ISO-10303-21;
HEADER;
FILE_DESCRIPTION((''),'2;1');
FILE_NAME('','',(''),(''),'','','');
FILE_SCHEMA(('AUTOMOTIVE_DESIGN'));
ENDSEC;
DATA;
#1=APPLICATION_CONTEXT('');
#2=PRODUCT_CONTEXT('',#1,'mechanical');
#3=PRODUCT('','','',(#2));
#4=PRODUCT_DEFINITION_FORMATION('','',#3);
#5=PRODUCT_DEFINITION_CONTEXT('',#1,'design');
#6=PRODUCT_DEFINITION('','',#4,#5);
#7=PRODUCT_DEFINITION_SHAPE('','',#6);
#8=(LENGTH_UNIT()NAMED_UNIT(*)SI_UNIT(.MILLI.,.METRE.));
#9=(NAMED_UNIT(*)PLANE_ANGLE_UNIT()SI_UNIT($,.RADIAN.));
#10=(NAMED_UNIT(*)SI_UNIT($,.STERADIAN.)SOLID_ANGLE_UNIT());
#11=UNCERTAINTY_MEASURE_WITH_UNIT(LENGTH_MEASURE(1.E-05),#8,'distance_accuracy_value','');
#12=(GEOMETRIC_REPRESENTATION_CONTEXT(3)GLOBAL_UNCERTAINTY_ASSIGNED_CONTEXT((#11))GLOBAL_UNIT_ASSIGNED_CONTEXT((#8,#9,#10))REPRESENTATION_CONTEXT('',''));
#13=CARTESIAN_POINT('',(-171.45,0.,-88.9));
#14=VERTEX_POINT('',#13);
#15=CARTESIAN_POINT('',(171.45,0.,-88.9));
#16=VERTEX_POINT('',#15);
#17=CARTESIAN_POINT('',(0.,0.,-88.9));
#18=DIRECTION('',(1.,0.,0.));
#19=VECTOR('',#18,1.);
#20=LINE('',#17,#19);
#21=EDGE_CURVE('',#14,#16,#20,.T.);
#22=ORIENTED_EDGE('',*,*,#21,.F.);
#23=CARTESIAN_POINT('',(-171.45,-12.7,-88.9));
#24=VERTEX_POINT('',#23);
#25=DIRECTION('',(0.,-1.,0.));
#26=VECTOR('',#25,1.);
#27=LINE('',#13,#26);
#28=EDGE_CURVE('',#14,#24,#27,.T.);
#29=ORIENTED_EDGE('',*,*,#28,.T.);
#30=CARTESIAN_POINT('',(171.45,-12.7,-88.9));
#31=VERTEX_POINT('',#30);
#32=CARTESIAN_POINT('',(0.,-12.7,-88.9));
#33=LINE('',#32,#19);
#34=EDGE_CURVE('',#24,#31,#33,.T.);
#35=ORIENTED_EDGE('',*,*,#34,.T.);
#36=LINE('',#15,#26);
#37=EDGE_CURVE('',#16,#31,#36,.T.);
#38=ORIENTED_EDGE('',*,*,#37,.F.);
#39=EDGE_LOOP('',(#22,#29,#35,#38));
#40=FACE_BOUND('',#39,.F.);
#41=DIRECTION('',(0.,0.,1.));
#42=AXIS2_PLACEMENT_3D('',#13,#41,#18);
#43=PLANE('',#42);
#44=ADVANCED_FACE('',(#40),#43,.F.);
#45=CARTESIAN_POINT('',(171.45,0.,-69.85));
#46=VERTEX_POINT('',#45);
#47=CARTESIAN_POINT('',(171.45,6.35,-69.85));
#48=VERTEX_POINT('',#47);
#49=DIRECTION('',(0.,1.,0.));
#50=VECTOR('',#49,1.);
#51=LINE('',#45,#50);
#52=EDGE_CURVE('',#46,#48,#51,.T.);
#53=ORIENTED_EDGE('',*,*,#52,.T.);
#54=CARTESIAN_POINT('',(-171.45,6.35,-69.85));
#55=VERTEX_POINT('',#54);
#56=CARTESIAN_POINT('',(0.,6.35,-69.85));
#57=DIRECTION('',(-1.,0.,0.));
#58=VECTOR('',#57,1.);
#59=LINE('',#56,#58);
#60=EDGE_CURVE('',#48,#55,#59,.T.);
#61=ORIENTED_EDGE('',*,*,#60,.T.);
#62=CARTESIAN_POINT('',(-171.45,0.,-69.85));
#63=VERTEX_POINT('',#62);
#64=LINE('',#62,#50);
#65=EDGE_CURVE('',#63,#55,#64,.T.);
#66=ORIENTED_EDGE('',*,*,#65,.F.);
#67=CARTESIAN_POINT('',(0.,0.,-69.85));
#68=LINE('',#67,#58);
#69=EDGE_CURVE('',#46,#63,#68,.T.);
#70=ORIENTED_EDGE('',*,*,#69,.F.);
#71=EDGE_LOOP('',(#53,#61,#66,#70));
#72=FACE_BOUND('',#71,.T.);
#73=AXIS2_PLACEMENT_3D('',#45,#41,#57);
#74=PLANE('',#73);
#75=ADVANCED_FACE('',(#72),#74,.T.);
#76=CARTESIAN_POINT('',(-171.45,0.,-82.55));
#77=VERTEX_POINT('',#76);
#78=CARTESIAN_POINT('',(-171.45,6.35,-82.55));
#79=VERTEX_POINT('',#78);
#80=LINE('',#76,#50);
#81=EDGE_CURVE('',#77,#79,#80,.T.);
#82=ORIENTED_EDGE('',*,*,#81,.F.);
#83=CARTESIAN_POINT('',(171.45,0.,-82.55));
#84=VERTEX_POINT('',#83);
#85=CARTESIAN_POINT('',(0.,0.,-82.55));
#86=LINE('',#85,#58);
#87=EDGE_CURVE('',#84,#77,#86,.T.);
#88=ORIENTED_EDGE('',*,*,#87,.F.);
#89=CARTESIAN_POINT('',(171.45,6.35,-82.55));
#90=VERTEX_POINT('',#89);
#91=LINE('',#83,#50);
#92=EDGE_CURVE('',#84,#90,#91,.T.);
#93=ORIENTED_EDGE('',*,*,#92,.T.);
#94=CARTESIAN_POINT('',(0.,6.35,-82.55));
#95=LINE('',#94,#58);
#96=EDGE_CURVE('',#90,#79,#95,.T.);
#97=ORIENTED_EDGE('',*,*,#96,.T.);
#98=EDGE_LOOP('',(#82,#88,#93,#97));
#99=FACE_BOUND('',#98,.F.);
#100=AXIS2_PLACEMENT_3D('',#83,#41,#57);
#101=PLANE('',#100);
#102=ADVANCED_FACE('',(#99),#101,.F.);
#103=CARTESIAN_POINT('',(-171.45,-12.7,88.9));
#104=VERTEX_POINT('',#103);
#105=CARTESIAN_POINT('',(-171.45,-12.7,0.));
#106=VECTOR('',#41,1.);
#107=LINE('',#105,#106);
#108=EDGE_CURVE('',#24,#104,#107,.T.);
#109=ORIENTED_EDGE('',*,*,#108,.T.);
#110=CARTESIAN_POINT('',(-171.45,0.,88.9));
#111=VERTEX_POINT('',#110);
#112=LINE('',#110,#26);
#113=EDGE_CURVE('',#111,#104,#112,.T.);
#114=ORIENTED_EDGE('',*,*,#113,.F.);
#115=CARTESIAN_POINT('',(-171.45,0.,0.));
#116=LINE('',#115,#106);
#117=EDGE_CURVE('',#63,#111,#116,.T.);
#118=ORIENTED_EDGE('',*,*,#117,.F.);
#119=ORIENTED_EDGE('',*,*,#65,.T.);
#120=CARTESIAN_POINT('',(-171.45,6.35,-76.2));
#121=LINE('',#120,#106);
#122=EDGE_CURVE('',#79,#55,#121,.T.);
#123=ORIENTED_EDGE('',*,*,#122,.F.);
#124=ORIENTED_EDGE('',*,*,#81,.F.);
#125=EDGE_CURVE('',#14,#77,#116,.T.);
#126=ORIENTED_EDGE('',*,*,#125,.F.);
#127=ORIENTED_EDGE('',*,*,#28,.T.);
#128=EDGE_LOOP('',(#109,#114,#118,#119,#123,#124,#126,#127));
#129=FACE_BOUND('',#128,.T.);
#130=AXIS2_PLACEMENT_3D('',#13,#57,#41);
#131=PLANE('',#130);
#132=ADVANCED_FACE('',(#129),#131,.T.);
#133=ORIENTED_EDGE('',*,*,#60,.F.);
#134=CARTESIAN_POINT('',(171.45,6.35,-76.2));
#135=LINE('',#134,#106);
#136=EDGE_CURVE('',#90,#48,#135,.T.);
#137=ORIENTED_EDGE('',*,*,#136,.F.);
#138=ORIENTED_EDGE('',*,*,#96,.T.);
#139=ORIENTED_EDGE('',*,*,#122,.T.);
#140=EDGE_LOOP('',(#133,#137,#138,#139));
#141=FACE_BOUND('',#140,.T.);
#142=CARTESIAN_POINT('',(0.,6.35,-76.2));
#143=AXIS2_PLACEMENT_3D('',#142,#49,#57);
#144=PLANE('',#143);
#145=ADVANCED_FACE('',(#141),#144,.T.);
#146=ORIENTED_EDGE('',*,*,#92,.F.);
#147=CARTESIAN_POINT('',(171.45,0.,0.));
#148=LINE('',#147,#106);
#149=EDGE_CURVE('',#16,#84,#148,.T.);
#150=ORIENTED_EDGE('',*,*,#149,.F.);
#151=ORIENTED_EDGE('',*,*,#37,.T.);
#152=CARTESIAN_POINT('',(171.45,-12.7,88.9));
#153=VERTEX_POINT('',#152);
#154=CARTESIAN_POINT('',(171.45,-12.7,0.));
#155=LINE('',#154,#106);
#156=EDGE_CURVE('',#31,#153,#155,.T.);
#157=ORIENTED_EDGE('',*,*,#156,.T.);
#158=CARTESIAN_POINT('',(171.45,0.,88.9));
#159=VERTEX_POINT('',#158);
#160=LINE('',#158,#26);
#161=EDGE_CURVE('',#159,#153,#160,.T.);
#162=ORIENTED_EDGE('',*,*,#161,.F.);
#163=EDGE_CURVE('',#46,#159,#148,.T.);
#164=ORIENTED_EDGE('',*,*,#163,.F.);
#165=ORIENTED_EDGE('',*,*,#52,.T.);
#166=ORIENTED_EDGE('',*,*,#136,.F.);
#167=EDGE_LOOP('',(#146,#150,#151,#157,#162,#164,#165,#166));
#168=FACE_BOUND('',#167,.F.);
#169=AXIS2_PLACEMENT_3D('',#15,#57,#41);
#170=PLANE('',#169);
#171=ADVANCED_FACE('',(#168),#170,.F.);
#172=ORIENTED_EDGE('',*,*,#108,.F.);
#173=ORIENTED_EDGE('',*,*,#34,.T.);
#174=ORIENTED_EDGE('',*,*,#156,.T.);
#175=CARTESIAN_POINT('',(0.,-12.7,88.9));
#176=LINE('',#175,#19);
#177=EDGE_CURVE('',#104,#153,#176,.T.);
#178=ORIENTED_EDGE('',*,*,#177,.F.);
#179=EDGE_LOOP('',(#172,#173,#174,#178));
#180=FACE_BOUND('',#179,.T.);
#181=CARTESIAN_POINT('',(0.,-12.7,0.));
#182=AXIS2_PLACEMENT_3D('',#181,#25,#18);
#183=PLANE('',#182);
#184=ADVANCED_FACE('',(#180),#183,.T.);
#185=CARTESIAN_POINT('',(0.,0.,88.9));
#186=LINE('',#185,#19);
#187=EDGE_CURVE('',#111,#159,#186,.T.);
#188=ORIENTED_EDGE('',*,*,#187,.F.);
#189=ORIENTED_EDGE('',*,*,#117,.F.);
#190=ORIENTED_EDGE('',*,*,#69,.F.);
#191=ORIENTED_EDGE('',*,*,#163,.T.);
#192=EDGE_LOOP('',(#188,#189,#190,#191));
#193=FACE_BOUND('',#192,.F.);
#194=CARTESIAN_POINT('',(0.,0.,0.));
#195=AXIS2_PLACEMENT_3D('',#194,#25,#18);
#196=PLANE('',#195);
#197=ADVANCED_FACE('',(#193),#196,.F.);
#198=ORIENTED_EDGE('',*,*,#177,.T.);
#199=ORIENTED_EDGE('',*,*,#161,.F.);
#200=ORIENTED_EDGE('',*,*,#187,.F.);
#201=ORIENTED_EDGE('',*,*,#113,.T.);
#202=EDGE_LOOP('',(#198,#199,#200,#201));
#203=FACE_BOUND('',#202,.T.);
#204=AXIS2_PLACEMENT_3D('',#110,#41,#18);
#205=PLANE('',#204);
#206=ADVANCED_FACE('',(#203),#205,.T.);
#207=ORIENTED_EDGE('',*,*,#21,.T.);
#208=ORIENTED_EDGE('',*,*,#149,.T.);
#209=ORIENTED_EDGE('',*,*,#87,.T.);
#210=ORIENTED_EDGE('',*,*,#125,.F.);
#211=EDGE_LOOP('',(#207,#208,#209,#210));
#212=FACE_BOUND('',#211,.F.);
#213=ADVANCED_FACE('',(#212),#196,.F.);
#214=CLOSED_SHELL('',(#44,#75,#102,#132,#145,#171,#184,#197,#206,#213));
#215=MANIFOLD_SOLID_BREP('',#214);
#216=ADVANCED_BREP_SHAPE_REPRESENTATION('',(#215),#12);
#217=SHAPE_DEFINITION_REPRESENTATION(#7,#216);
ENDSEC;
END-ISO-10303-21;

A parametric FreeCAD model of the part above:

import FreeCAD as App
import Part
import Sketcher
Q = App.Units.Quantity


def add_polygon(sketch, points):
    """Adds a closed chain of lines whose ends are joined by coincident constraints."""
    first, n = sketch.GeometryCount, len(points)
    for a, b in zip(points, points[1:] + points[:1]):
        sketch.addGeometry(Part.LineSegment(App.Vector(*a, 0), App.Vector(*b, 0)), False)
    for i in range(n):
        sketch.addConstraint(Sketcher.Constraint("Coincident", first + i, 2, first + (i + 1) % n, 1))

doc = App.newDocument("Part")
body = doc.addObject("PartDesign::Body", "Body")

# Sketch on XZ plane
sketch1 = body.newObject("Sketcher::SketchObject", "Sketch")
sketch1.AttachmentSupport = (doc.getObject("XZ_Plane"), [""])
sketch1.MapMode = "FlatFace"
add_polygon(sketch1, [(-171, 89), (-171, -89), (171, -89), (171, 89)])  # lines 0-3
sketch1.addConstraint([
    Sketcher.Constraint("Vertical", 0),
    Sketcher.Constraint("Horizontal", 1),
    Sketcher.Constraint("Vertical", 2),
    Sketcher.Constraint("Horizontal", 3),
    Sketcher.Constraint("Symmetric", 0, 2, 2, 2, -1, 1),
    Sketcher.Constraint("DistanceY", 0, 2, 0, 1, Q("7 in")),
    Sketcher.Constraint("DistanceX", 1, 1, 1, 2, Q("13.5 in")),
])
pad1 = body.newObject("PartDesign::Pad", "Pad")
pad1.Profile = sketch1
pad1.Length = Q("0.5 in")

# Sketch on XZ plane
sketch2 = body.newObject("Sketcher::SketchObject", "Sketch001")
sketch2.AttachmentSupport = (doc.getObject("XZ_Plane"), [""])
sketch2.MapMode = "FlatFace"
add_polygon(sketch2, [(171, -70), (171, -83), (-171, -83), (-171, -70)])  # lines 0-3
sketch2.addConstraint([
    Sketcher.Constraint("Vertical", 0),
    Sketcher.Constraint("Horizontal", 1),
    Sketcher.Constraint("Vertical", 2),
    Sketcher.Constraint("Horizontal", 3),
    Sketcher.Constraint("DistanceX", 1, 2, 1, 1, Q("13.5 in")),
    Sketcher.Constraint("DistanceY", 0, 2, 0, 1, Q("0.5 in")),
    Sketcher.Constraint("DistanceX", -1, 1, 0, 2, Q("6.75 in")),
    Sketcher.Constraint("DistanceY", 0, 2, -1, 1, Q("3.25 in")),
])
pad2 = body.newObject("PartDesign::Pad", "Pad001")
pad2.Profile = sketch2
pad2.Length = Q("0.25 in")
pad2.Reversed = True

doc.recompute()
